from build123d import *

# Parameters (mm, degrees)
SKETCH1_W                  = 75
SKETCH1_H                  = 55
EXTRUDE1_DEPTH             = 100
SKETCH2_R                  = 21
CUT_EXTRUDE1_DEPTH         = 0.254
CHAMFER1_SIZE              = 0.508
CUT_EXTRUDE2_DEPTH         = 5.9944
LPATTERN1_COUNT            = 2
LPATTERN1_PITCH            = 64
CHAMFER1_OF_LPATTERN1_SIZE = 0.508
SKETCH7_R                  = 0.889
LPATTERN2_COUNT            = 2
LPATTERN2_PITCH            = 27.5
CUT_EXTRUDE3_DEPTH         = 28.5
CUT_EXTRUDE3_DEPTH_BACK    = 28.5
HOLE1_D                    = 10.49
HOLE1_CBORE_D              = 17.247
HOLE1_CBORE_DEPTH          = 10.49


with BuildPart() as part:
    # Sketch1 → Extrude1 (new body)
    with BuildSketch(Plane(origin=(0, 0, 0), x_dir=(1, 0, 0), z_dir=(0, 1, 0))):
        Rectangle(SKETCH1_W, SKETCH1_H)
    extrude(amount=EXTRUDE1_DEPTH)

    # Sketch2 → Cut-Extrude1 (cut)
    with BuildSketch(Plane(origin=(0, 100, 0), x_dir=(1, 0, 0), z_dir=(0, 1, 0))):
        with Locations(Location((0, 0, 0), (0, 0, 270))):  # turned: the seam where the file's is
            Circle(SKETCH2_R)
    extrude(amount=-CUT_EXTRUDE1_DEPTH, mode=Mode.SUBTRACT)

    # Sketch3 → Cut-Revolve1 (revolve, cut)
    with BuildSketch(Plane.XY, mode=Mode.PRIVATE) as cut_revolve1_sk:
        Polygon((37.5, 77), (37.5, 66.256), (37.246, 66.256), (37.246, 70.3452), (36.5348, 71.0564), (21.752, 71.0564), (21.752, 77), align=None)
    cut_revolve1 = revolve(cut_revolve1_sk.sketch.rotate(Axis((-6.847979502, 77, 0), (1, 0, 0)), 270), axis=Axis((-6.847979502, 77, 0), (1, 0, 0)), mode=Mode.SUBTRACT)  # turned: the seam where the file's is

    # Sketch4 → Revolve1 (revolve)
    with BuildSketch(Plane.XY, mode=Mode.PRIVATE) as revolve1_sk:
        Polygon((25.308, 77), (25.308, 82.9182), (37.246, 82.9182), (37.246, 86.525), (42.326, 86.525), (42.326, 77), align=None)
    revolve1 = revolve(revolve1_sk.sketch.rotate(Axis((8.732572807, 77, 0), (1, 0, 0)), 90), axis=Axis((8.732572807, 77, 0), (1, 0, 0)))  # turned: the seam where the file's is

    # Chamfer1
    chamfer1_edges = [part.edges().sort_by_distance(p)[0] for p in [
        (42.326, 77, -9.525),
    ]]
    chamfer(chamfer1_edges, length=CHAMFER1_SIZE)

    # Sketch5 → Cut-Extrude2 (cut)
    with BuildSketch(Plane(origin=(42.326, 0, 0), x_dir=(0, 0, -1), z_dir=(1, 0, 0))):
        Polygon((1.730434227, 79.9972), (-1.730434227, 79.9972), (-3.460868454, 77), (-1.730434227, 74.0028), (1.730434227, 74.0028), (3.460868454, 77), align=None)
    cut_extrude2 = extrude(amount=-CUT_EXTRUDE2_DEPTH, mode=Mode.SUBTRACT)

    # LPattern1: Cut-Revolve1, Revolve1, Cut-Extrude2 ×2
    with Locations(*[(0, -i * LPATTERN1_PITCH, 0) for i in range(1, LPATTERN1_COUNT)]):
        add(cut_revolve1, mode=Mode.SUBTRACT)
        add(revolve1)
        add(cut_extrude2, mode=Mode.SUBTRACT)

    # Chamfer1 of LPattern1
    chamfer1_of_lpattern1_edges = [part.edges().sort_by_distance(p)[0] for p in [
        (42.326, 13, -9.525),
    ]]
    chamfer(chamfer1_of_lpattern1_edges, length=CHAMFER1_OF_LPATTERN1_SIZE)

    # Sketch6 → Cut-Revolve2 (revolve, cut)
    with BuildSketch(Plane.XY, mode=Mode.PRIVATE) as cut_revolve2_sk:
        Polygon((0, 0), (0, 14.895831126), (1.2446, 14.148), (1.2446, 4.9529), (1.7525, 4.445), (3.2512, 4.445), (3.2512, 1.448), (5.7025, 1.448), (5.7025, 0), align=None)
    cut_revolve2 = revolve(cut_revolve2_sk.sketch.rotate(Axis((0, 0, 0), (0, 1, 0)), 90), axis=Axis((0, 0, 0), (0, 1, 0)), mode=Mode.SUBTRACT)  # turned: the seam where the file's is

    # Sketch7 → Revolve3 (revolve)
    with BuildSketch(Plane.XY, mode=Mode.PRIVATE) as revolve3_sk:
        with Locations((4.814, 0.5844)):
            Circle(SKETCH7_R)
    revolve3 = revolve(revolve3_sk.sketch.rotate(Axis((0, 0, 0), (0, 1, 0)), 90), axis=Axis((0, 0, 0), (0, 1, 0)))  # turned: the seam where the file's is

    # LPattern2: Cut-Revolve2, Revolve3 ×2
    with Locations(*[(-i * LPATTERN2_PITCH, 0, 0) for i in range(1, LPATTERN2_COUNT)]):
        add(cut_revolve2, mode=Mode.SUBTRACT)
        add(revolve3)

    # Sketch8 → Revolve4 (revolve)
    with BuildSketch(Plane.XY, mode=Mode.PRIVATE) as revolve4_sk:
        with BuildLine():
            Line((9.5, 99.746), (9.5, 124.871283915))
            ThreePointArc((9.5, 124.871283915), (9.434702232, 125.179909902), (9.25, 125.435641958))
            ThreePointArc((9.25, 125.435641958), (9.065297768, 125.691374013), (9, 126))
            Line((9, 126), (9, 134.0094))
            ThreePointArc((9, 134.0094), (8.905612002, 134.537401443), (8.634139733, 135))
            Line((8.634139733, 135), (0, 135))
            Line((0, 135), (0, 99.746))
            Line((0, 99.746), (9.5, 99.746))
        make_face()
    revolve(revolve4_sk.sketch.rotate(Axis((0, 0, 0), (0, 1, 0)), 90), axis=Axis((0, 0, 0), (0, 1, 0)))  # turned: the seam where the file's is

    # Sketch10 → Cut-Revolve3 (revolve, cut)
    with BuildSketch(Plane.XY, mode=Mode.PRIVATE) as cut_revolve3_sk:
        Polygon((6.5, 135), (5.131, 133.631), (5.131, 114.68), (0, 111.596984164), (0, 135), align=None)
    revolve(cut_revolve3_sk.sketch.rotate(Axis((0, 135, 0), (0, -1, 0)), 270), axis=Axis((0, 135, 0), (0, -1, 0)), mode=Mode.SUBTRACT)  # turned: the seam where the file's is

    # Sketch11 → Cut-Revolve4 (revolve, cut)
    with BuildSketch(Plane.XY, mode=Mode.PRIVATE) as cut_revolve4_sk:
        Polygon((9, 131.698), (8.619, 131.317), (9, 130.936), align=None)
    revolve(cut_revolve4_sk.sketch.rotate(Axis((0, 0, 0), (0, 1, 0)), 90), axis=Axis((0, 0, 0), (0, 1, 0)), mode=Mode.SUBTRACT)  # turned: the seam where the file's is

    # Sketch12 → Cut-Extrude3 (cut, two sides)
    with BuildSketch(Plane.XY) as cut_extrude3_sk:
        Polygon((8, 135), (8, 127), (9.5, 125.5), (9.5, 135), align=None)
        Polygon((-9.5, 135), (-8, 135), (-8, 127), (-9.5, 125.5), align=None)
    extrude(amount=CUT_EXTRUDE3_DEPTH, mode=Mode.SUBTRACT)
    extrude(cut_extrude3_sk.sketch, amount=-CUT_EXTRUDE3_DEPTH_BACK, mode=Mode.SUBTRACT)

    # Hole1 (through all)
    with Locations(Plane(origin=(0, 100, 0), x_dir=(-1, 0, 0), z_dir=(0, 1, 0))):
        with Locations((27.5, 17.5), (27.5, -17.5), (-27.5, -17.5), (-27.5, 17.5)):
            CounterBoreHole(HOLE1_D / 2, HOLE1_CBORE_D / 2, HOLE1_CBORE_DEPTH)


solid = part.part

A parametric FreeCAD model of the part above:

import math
import FreeCAD as App
import Part
import Sketcher
Q = App.Units.Quantity


def edges_at(feature, points):
    """Names of the edges that pass closest to the given points."""
    edges = feature.Shape.Edges
    near = lambda p: min(range(len(edges)), key=lambda i: edges[i].distToShape(Part.Vertex(*p))[0])
    return sorted({f"Edge{near(p) + 1}" for p in points})

doc = App.newDocument("Part")
body = doc.addObject("PartDesign::Body", "Body")

# Sketch on XZ plane
sketch1 = doc.addObject("Sketcher::SketchObject", "Sketch")
body.addObject(sketch1)
sketch1.AttachmentSupport = (doc.XZ_Plane, [""])
sketch1.MapMode = "FlatFace"
sketch1.addGeometry([
    Part.LineSegment(App.Vector(-37.5, -27.5, 0), App.Vector(-37.5, 27.5, 0)),
    Part.LineSegment(App.Vector(-37.5, 27.5, 0), App.Vector(37.5, 27.5, 0)),
    Part.LineSegment(App.Vector(37.5, 27.5, 0), App.Vector(37.5, -27.5, 0)),
    Part.LineSegment(App.Vector(37.5, -27.5, 0), App.Vector(-37.5, -27.5, 0)),
], False)
sketch1.addConstraint([
    Sketcher.Constraint("Coincident", 0, 2, 1, 1),
    Sketcher.Constraint("Coincident", 1, 2, 2, 1),
    Sketcher.Constraint("Coincident", 2, 2, 3, 1),
    Sketcher.Constraint("Coincident", 3, 2, 0, 1),
    Sketcher.Constraint("Vertical", 0),
    Sketcher.Constraint("Horizontal", 1),
    Sketcher.Constraint("Vertical", 2),
    Sketcher.Constraint("Horizontal", 3),
    Sketcher.Constraint("Symmetric", 0, 2, 2, 2, -1, 1),
    Sketcher.Constraint("DistanceX", 1, 1, 1, 2, Q("75 mm")),
    Sketcher.Constraint("DistanceY", 0, 1, 0, 2, Q("55 mm")),
])
pad1 = doc.addObject("PartDesign::Pad", "Pad")
body.addObject(pad1)
pad1.Profile = sketch1
pad1.Length = 100
pad1.Reversed = True

# Sketch on XZ plane
sketch2 = doc.addObject("Sketcher::SketchObject", "Sketch001")
body.addObject(sketch2)
sketch2.AttachmentSupport = (doc.XZ_Plane, [""])
sketch2.MapMode = "FlatFace"
sketch2.AttachmentOffset = App.Placement(App.Vector(0, 0, -100), App.Rotation())
sketch2.addGeometry(Part.Circle(App.Vector(0, 0, 0), App.Vector(0, 0, 1), 21), False)
sketch2.addConstraint([
    Sketcher.Constraint("Coincident", 0, 3, -1, 1),
    Sketcher.Constraint("Diameter", 0, Q("42 mm")),
])
pocket1 = doc.addObject("PartDesign::Pocket", "Pocket")
body.addObject(pocket1)
pocket1.Profile = sketch2
pocket1.Length = Q("0.01 in")
pocket1.Reversed = True

# Sketch on XY plane
sketch3 = doc.addObject("Sketcher::SketchObject", "Sketch002")
body.addObject(sketch3)
sketch3.AttachmentSupport = (doc.XY_Plane, [""])
sketch3.MapMode = "FlatFace"
sketch3.addGeometry([
    Part.LineSegment(App.Vector(37.5, 66.256, 0), App.Vector(37.5, 77, 0)),  # 0
    Part.LineSegment(App.Vector(37.5, 77, 0), App.Vector(21.752, 77, 0)),  # 1
    Part.LineSegment(App.Vector(21.752, 77, 0), App.Vector(21.752, 71.0564, 0)),  # 2
    Part.LineSegment(App.Vector(21.752, 71.0564, 0), App.Vector(36.5348, 71.0564, 0)),  # 3
    Part.LineSegment(App.Vector(36.5348, 71.0564, 0), App.Vector(37.246, 70.3452, 0)),  # 4
    Part.LineSegment(App.Vector(37.246, 70.3452, 0), App.Vector(37.246, 66.256, 0)),  # 5
    Part.LineSegment(App.Vector(37.246, 66.256, 0), App.Vector(37.5, 66.256, 0)),  # 6
], False)
sketch3.addGeometry(Part.LineSegment(App.Vector(21.752, 77, 0), App.Vector(37.5, 77, 0)), True)  # axis
sketch3.addConstraint([
    Sketcher.Constraint("Coincident", 0, 2, 1, 1),
    Sketcher.Constraint("Coincident", 1, 2, 2, 1),
    Sketcher.Constraint("Coincident", 2, 2, 3, 1),
    Sketcher.Constraint("Coincident", 3, 2, 4, 1),
    Sketcher.Constraint("Coincident", 4, 2, 5, 1),
    Sketcher.Constraint("Coincident", 5, 2, 6, 1),
    Sketcher.Constraint("Coincident", 6, 2, 0, 1),
    Sketcher.Constraint("Vertical", 0),
    Sketcher.Constraint("Horizontal", 1),
    Sketcher.Constraint("Vertical", 2),
    Sketcher.Constraint("Horizontal", 3),
    Sketcher.Constraint("Vertical", 5),
    Sketcher.Constraint("Horizontal", 6),
    Sketcher.Constraint("Horizontal", 7),
    Sketcher.Constraint("Coincident", 7, 1, 1, 2),
    Sketcher.Constraint("Vertical", 6, 2, 7, 2),
    Sketcher.Constraint("Angle", 4, Q("-45 deg")),
    Sketcher.Constraint("DistanceX", 1, 2, 1, 1, Q("0.62 in")),
    Sketcher.Constraint("DistanceX", 6, 1, 6, 2, Q("0.01 in")),
    Sketcher.Constraint("DistanceX", 3, 1, 3, 2, Q("0.582 in")),
    Sketcher.Constraint("DistanceY", 2, 2, 2, 1, Q("0.234 in")),
    Sketcher.Constraint("DistanceY", 0, 1, 0, 2, Q("10.744 mm")),
    Sketcher.Constraint("DistanceX", -1, 1, 0, 2, Q("37.5 mm")),
    Sketcher.Constraint("DistanceY", -1, 1, 0, 2, Q("77 mm")),
])
groove = doc.addObject("PartDesign::Groove", "Groove")
body.addObject(groove)
groove.Profile = sketch3
groove.ReferenceAxis = (sketch3, ["Axis0"])
groove.Angle = 360

# Sketch on XY plane
sketch4 = doc.addObject("Sketcher::SketchObject", "Sketch003")
body.addObject(sketch4)
sketch4.AttachmentSupport = (doc.XY_Plane, [""])
sketch4.MapMode = "FlatFace"
sketch4.addGeometry([
    Part.LineSegment(App.Vector(25.308, 82.9182, 0), App.Vector(25.308, 77, 0)),  # 0
    Part.LineSegment(App.Vector(25.308, 77, 0), App.Vector(42.326, 77, 0)),  # 1
    Part.LineSegment(App.Vector(42.326, 77, 0), App.Vector(42.326, 86.525, 0)),  # 2
    Part.LineSegment(App.Vector(42.326, 86.525, 0), App.Vector(37.246, 86.525, 0)),  # 3
    Part.LineSegment(App.Vector(37.246, 86.525, 0), App.Vector(37.246, 82.9182, 0)),  # 4
    Part.LineSegment(App.Vector(37.246, 82.9182, 0), App.Vector(25.308, 82.9182, 0)),  # 5
], False)
sketch4.addGeometry(Part.LineSegment(App.Vector(25.308, 77, 0), App.Vector(42.326, 77, 0)), True)  # axis
sketch4.addConstraint([
    Sketcher.Constraint("Coincident", 0, 2, 1, 1),
    Sketcher.Constraint("Coincident", 1, 2, 2, 1),
    Sketcher.Constraint("Coincident", 2, 2, 3, 1),
    Sketcher.Constraint("Coincident", 3, 2, 4, 1),
    Sketcher.Constraint("Coincident", 4, 2, 5, 1),
    Sketcher.Constraint("Coincident", 5, 2, 0, 1),
    Sketcher.Constraint("Vertical", 0),
    Sketcher.Constraint("Horizontal", 1),
    Sketcher.Constraint("Vertical", 2),
    Sketcher.Constraint("Horizontal", 3),
    Sketcher.Constraint("Vertical", 4),
    Sketcher.Constraint("Horizontal", 5),
    Sketcher.Constraint("Horizontal", 6),
    Sketcher.Constraint("Coincident", 6, 1, 0, 2),
    Sketcher.Constraint("Vertical", 2, 2, 6, 2),
    Sketcher.Constraint("DistanceX", 3, 2, 3, 1, Q("0.2 in")),
    Sketcher.Constraint("DistanceX", 1, 1, 1, 2, Q("0.67 in")),
    Sketcher.Constraint("DistanceY", 0, 2, 0, 1, Q("0.233 in")),
    Sketcher.Constraint("DistanceY", 2, 1, 2, 2, Q("0.375 in")),
    Sketcher.Constraint("DistanceX", -1, 1, 0, 2, Q("25.308 mm")),
    Sketcher.Constraint("DistanceY", -1, 1, 0, 2, Q("77 mm")),
])
revolution = doc.addObject("PartDesign::Revolution", "Revolution")
body.addObject(revolution)
revolution.Profile = sketch4
revolution.ReferenceAxis = (sketch4, ["Axis0"])
revolution.Angle = 360
doc.recompute()

chamfer = doc.addObject("PartDesign::Chamfer", "Chamfer")
body.addObject(chamfer)
chamfer.Base = (revolution, edges_at(revolution, [(42.326, 77, -9.525)]))
chamfer.Size = Q("0.02 in")

# Sketch on YZ plane
sketch5 = doc.addObject("Sketcher::SketchObject", "Sketch004")
body.addObject(sketch5)
sketch5.AttachmentSupport = (doc.YZ_Plane, [""])
sketch5.MapMode = "FlatFace"
sketch5.AttachmentOffset = App.Placement(App.Vector(0, 0, 42.326), App.Rotation())
sketch5.addGeometry([
    Part.LineSegment(App.Vector(79.9972, -1.730434, 0), App.Vector(79.9972, 1.730434, 0)),  # 0
    Part.LineSegment(App.Vector(79.9972, 1.730434, 0), App.Vector(77, 3.460868, 0)),  # 1
    Part.LineSegment(App.Vector(77, 3.460868, 0), App.Vector(74.0028, 1.730434, 0)),  # 2
    Part.LineSegment(App.Vector(74.0028, 1.730434, 0), App.Vector(74.0028, -1.730434, 0)),  # 3
    Part.LineSegment(App.Vector(74.0028, -1.730434, 0), App.Vector(77, -3.460868, 0)),  # 4
    Part.LineSegment(App.Vector(77, -3.460868, 0), App.Vector(79.9972, -1.730434, 0)),  # 5
], False)
sketch5.addConstraint([
    Sketcher.Constraint("Coincident", 0, 2, 1, 1),
    Sketcher.Constraint("Coincident", 1, 2, 2, 1),
    Sketcher.Constraint("Coincident", 2, 2, 3, 1),
    Sketcher.Constraint("Coincident", 3, 2, 4, 1),
    Sketcher.Constraint("Coincident", 4, 2, 5, 1),
    Sketcher.Constraint("Coincident", 5, 2, 0, 1),
    Sketcher.Constraint("Vertical", 0),
    Sketcher.Constraint("Vertical", 3),
    Sketcher.Constraint("Symmetric", 1, 2, 4, 2, -1),
    Sketcher.Constraint("Parallel", 1, 4),
    Sketcher.Constraint("Parallel", 2, 5),
    Sketcher.Constraint("Horizontal", 0, 2, 2, 2),
    Sketcher.Constraint("Horizontal", 3, 2, 5, 2),
    Sketcher.Constraint("Angle", 1, Q("150 deg")),
    Sketcher.Constraint("DistanceX", 1, 2, 0, 2, Q("0.118 in")),
    Sketcher.Constraint("DistanceY", 0, 1, 0, 2, Q("3.460868 mm")),
    Sketcher.Constraint("DistanceX", -1, 1, 0, 2, Q("79.9972 mm")),
])
pocket2 = doc.addObject("PartDesign::Pocket", "Pocket001")
body.addObject(pocket2)
pocket2.Profile = sketch5
pocket2.Length = Q("0.236 in")
doc.recompute()

linearpattern = doc.addObject("PartDesign::LinearPattern", "LinearPattern")
body.addObject(linearpattern)
linearpattern.Originals = [groove, revolution, pocket2]
linearpattern.Direction = (doc.Y_Axis, [""])
linearpattern.Mode = "offset"
linearpattern.Offset = 64
linearpattern.Occurrences = 2
linearpattern.Reversed = True
body.Tip = linearpattern
doc.recompute()

chamfer2 = doc.addObject("PartDesign::Chamfer", "Chamfer001")
body.addObject(chamfer2)
chamfer2.Base = (linearpattern, edges_at(linearpattern, [(42.326, 13, -9.525)]))
chamfer2.Size = Q("0.02 in")

# Sketch on XY plane
sketch6 = doc.addObject("Sketcher::SketchObject", "Sketch005")
body.addObject(sketch6)
sketch6.AttachmentSupport = (doc.XY_Plane, [""])
sketch6.MapMode = "FlatFace"
sketch6.addGeometry([
    Part.LineSegment(App.Vector(0, 14.895831, 0), App.Vector(0, 0, 0)),  # 0
    Part.LineSegment(App.Vector(0, 0, 0), App.Vector(5.7025, 0, 0)),  # 1
    Part.LineSegment(App.Vector(5.7025, 0, 0), App.Vector(5.7025, 1.448, 0)),  # 2
    Part.LineSegment(App.Vector(5.7025, 1.448, 0), App.Vector(3.2512, 1.448, 0)),  # 3
    Part.LineSegment(App.Vector(3.2512, 1.448, 0), App.Vector(3.2512, 4.445, 0)),  # 4
    Part.LineSegment(App.Vector(3.2512, 4.445, 0), App.Vector(1.7525, 4.445, 0)),  # 5
    Part.LineSegment(App.Vector(1.7525, 4.445, 0), App.Vector(1.2446, 4.9529, 0)),  # 6
    Part.LineSegment(App.Vector(1.2446, 4.9529, 0), App.Vector(1.2446, 14.148, 0)),  # 7
    Part.LineSegment(App.Vector(1.2446, 14.148, 0), App.Vector(0, 14.895831, 0)),  # 8
], False)
sketch6.addConstraint([
    Sketcher.Constraint("Coincident", 0, 2, 1, 1),
    Sketcher.Constraint("Coincident", 1, 2, 2, 1),
    Sketcher.Constraint("Coincident", 2, 2, 3, 1),
    Sketcher.Constraint("Coincident", 3, 2, 4, 1),
    Sketcher.Constraint("Coincident", 4, 2, 5, 1),
    Sketcher.Constraint("Coincident", 5, 2, 6, 1),
    Sketcher.Constraint("Coincident", 6, 2, 7, 1),
    Sketcher.Constraint("Coincident", 7, 2, 8, 1),
    Sketcher.Constraint("Coincident", 8, 2, 0, 1),
    Sketcher.Constraint("Vertical", 0),
    Sketcher.Constraint("Horizontal", 1),
    Sketcher.Constraint("Vertical", 2),
    Sketcher.Constraint("Horizontal", 3),
    Sketcher.Constraint("Vertical", 4),
    Sketcher.Constraint("Horizontal", 5),
    Sketcher.Constraint("Vertical", 7),
    Sketcher.Constraint("Coincident", 0, 2, -1, 1),
    Sketcher.Constraint("Angle", 6, Q("135 deg")),
    Sketcher.Constraint("Angle", 8, Q("149 deg")),
    Sketcher.Constraint("DistanceY", 3, 2, 7, 2, Q("0.5 in")),
    Sketcher.Constraint("DistanceX", -1, 1, 3, 2, Q("0.128 in")),
    Sketcher.Constraint("DistanceY", -1, 1, 4, 2, Q("0.175 in")),
    Sketcher.Constraint("DistanceX", -1, 1, 6, 2, Q("0.049 in")),
    Sketcher.Constraint("DistanceX", 1, 1, 1, 2, Q("5.7025 mm")),
    Sketcher.Constraint("DistanceX", 5, 2, 5, 1, Q("1.4987 mm")),
    Sketcher.Constraint("DistanceY", 2, 1, 2, 2, Q("1.448 mm")),
])
groove2 = doc.addObject("PartDesign::Groove", "Groove001")
body.addObject(groove2)
groove2.Profile = sketch6
groove2.ReferenceAxis = (sketch6, ["V_Axis"])
groove2.Angle = 360

# Sketch on XY plane
sketch7 = doc.addObject("Sketcher::SketchObject", "Sketch006")
body.addObject(sketch7)
sketch7.AttachmentSupport = (doc.XY_Plane, [""])
sketch7.MapMode = "FlatFace"
sketch7.addGeometry(Part.Circle(App.Vector(4.814, 0.5844, 0), App.Vector(0, 0, 1), 0.889), False)
sketch7.addConstraint([
    Sketcher.Constraint("Diameter", 0, Q("0.07 in")),
    Sketcher.Constraint("DistanceX", -1, 1, 0, 3, Q("4.814 mm")),
    Sketcher.Constraint("DistanceY", -1, 1, 0, 3, Q("0.5844 mm")),
])
revolution2 = doc.addObject("PartDesign::Revolution", "Revolution001")
body.addObject(revolution2)
revolution2.Profile = sketch7
revolution2.ReferenceAxis = (sketch7, ["V_Axis"])
revolution2.Angle = 360
doc.recompute()

linearpattern2 = doc.addObject("PartDesign::LinearPattern", "LinearPattern001")
body.addObject(linearpattern2)
linearpattern2.Originals = [groove2, revolution2]
linearpattern2.Direction = (doc.X_Axis, [""])
linearpattern2.Mode = "offset"
linearpattern2.Offset = 27.5
linearpattern2.Occurrences = 2
linearpattern2.Reversed = True
body.Tip = linearpattern2

# Sketch on XY plane
sketch8 = doc.addObject("Sketcher::SketchObject", "Sketch007")
body.addObject(sketch8)
sketch8.AttachmentSupport = (doc.XY_Plane, [""])
sketch8.MapMode = "FlatFace"
sketch8.addGeometry([
    Part.LineSegment(App.Vector(9.5, 99.746, 0), App.Vector(9.5, 124.871284, 0)),  # 0
    Part.ArcOfCircle(Part.Circle(App.Vector(8.738, 124.871284, 0), App.Vector(0, 0, 1), 0.762), math.radians(0), math.radians(47.784884)),  # 1
    Part.ArcOfCircle(Part.Circle(App.Vector(9.762, 126, 0), App.Vector(0, 0, 1), 0.762), math.radians(180), math.radians(227.784884)),  # 2
    Part.LineSegment(App.Vector(9, 126, 0), App.Vector(9, 134.0094, 0)),  # 3
    Part.ArcOfCircle(Part.Circle(App.Vector(7.476, 134.0094, 0), App.Vector(0, 0, 1), 1.524), math.radians(0), math.radians(40.541602)),  # 4
    Part.LineSegment(App.Vector(8.63414, 135, 0), App.Vector(0, 135, 0)),  # 5
    Part.LineSegment(App.Vector(0, 135, 0), App.Vector(0, 99.746, 0)),  # 6
    Part.LineSegment(App.Vector(0, 99.746, 0), App.Vector(9.5, 99.746, 0)),  # 7
], False)
sketch8.addConstraint([
    Sketcher.Constraint("Tangent", 0, 2, 1, 1),
    Sketcher.Constraint("Tangent", 1, 2, 2, 2),
    Sketcher.Constraint("Tangent", 2, 1, 3, 1),
    Sketcher.Constraint("Tangent", 3, 2, 4, 1),
    Sketcher.Constraint("Coincident", 4, 2, 5, 1),
    Sketcher.Constraint("Coincident", 5, 2, 6, 1),
    Sketcher.Constraint("Coincident", 6, 2, 7, 1),
    Sketcher.Constraint("Coincident", 7, 2, 0, 1),
    Sketcher.Constraint("Vertical", 0),
    Sketcher.Constraint("Vertical", 3),
    Sketcher.Constraint("Horizontal", 5),
    Sketcher.Constraint("Vertical", 6),
    Sketcher.Constraint("Horizontal", 7),
    Sketcher.Constraint("Equal", 1, 2),
    Sketcher.Constraint("PointOnObject", 5, 2, -2),
    Sketcher.Constraint("Radius", 1, Q("0.03 in")),
    Sketcher.Constraint("Radius", 4, Q("0.06 in")),
    Sketcher.Constraint("DistanceY", 3, 2, 4, 2, Q("0.039 in")),
    Sketcher.Constraint("DistanceX", 7, 1, 7, 2, Q("9.5 mm")),
    Sketcher.Constraint("DistanceY", 3, 1, 3, 2, Q("8.0094 mm")),
    Sketcher.Constraint("DistanceY", 6, 2, 6, 1, Q("35.254 mm")),
    Sketcher.Constraint("DistanceX", 5, 2, 5, 1, Q("8.63414 mm")),
    Sketcher.Constraint("DistanceY", -1, 1, 2, 3, Q("126 mm")),
])
revolution3 = doc.addObject("PartDesign::Revolution", "Revolution002")
body.addObject(revolution3)
revolution3.Profile = sketch8
revolution3.ReferenceAxis = (sketch8, ["V_Axis"])
revolution3.Angle = 360

# Sketch on XY plane
sketch9 = doc.addObject("Sketcher::SketchObject", "Sketch008")
body.addObject(sketch9)
sketch9.AttachmentSupport = (doc.XY_Plane, [""])
sketch9.MapMode = "FlatFace"
sketch9.addGeometry([
    Part.LineSegment(App.Vector(5.131, 133.631, 0), App.Vector(6.5, 135, 0)),  # 0
    Part.LineSegment(App.Vector(6.5, 135, 0), App.Vector(0, 135, 0)),  # 1
    Part.LineSegment(App.Vector(0, 135, 0), App.Vector(0, 111.596984, 0)),  # 2
    Part.LineSegment(App.Vector(0, 111.596984, 0), App.Vector(5.131, 114.68, 0)),  # 3
    Part.LineSegment(App.Vector(5.131, 114.68, 0), App.Vector(5.131, 133.631, 0)),  # 4
], False)
sketch9.addConstraint([
    Sketcher.Constraint("Coincident", 0, 2, 1, 1),
    Sketcher.Constraint("Coincident", 1, 2, 2, 1),
    Sketcher.Constraint("Coincident", 2, 2, 3, 1),
    Sketcher.Constraint("Coincident", 3, 2, 4, 1),
    Sketcher.Constraint("Coincident", 4, 2, 0, 1),
    Sketcher.Constraint("Horizontal", 1),
    Sketcher.Constraint("Vertical", 2),
    Sketcher.Constraint("Vertical", 4),
    Sketcher.Constraint("PointOnObject", 1, 2, -2),
    Sketcher.Constraint("Angle", 0, Q("45 deg")),
    Sketcher.Constraint("Angle", 3, Q("31 deg")),
    Sketcher.Constraint("DistanceY", 3, 2, 0, 2, Q("0.8 in")),
    Sketcher.Constraint("DistanceX", 1, 2, 1, 1, Q("6.5 mm")),
    Sketcher.Constraint("DistanceY", 4, 1, 4, 2, Q("18.951 mm")),
    Sketcher.Constraint("DistanceY", -1, 1, 0, 2, Q("135 mm")),
])
groove3 = doc.addObject("PartDesign::Groove", "Groove002")
body.addObject(groove3)
groove3.Profile = sketch9
groove3.ReferenceAxis = (sketch9, ["V_Axis"])
groove3.Angle = 360

# Sketch on XY plane
sketch10 = doc.addObject("Sketcher::SketchObject", "Sketch009")
body.addObject(sketch10)
sketch10.AttachmentSupport = (doc.XY_Plane, [""])
sketch10.MapMode = "FlatFace"
sketch10.addGeometry([
    Part.LineSegment(App.Vector(9, 131.698, 0), App.Vector(8.619, 131.317, 0)),
    Part.LineSegment(App.Vector(8.619, 131.317, 0), App.Vector(9, 130.936, 0)),
    Part.LineSegment(App.Vector(9, 130.936, 0), App.Vector(9, 131.698, 0)),
], False)
sketch10.addConstraint([
    Sketcher.Constraint("Coincident", 0, 2, 1, 1),
    Sketcher.Constraint("Coincident", 1, 2, 2, 1),
    Sketcher.Constraint("Coincident", 2, 2, 0, 1),
    Sketcher.Constraint("Vertical", 2),
    Sketcher.Constraint("Perpendicular", 0, 1),
    Sketcher.Constraint("Equal", 0, 1),
    Sketcher.Constraint("DistanceY", 2, 1, 2, 2, Q("0.03 in")),
    Sketcher.Constraint("DistanceX", -1, 1, 0, 2, Q("8.619 mm")),
    Sketcher.Constraint("DistanceY", -1, 1, 0, 2, Q("131.317 mm")),
])
groove4 = doc.addObject("PartDesign::Groove", "Groove003")
body.addObject(groove4)
groove4.Profile = sketch10
groove4.ReferenceAxis = (sketch10, ["V_Axis"])
groove4.Angle = 360

# Sketch on XY plane
sketch11 = doc.addObject("Sketcher::SketchObject", "Sketch010")
body.addObject(sketch11)
sketch11.AttachmentSupport = (doc.XY_Plane, [""])
sketch11.MapMode = "FlatFace"
sketch11.addGeometry([
    Part.LineSegment(App.Vector(8, 135, 0), App.Vector(8, 127, 0)),  # 0
    Part.LineSegment(App.Vector(8, 127, 0), App.Vector(9.5, 125.5, 0)),  # 1
    Part.LineSegment(App.Vector(9.5, 125.5, 0), App.Vector(9.5, 135, 0)),  # 2
    Part.LineSegment(App.Vector(9.5, 135, 0), App.Vector(8, 135, 0)),  # 3
    Part.LineSegment(App.Vector(-8, 135, 0), App.Vector(-9.5, 135, 0)),  # 4
    Part.LineSegment(App.Vector(-9.5, 135, 0), App.Vector(-9.5, 125.5, 0)),  # 5
    Part.LineSegment(App.Vector(-9.5, 125.5, 0), App.Vector(-8, 127, 0)),  # 6
    Part.LineSegment(App.Vector(-8, 127, 0), App.Vector(-8, 135, 0)),  # 7
], False)
sketch11.addConstraint([
    Sketcher.Constraint("Coincident", 0, 2, 1, 1),
    Sketcher.Constraint("Coincident", 1, 2, 2, 1),
    Sketcher.Constraint("Coincident", 2, 2, 3, 1),
    Sketcher.Constraint("Coincident", 3, 2, 0, 1),
    Sketcher.Constraint("Coincident", 4, 2, 5, 1),
    Sketcher.Constraint("Coincident", 5, 2, 6, 1),
    Sketcher.Constraint("Coincident", 6, 2, 7, 1),
    Sketcher.Constraint("Coincident", 7, 2, 4, 1),
    Sketcher.Constraint("Vertical", 0),
    Sketcher.Constraint("Vertical", 2),
    Sketcher.Constraint("Horizontal", 3),
    Sketcher.Constraint("Horizontal", 4),
    Sketcher.Constraint("Vertical", 5),
    Sketcher.Constraint("Vertical", 7),
    Sketcher.Constraint("Symmetric", 2, 2, 4, 2, -2),
    Sketcher.Constraint("Symmetric", 0, 2, 6, 2, -2),
    Sketcher.Constraint("Perpendicular", 1, 6),
    Sketcher.Constraint("Horizontal", 1, 2, 5, 2),
    Sketcher.Constraint("DistanceY", -1, 1, 0, 2, Q("5 in")),
    Sketcher.Constraint("DistanceX", 3, 2, 3, 1, Q("1.5 mm")),
    Sketcher.Constraint("DistanceY", 0, 2, 0, 1, Q("8 mm")),
    Sketcher.Constraint("DistanceX", -1, 1, 0, 2, Q("8 mm")),
])
pocket3 = doc.addObject("PartDesign::Pocket", "Pocket002")
body.addObject(pocket3)
pocket3.Profile = sketch11
pocket3.Type = "ThroughAll"
pocket3.Midplane = True

# Sketch on XZ plane
sketch12 = doc.addObject("Sketcher::SketchObject", "Sketch011")
body.addObject(sketch12)
sketch12.AttachmentSupport = (doc.XZ_Plane, [""])
sketch12.MapMode = "FlatFace"
sketch12.AttachmentOffset = App.Placement(App.Vector(0, 0, -100), App.Rotation())
sketch12.addGeometry([
    Part.Circle(App.Vector(-27.5, 17.5, 0), App.Vector(0, 0, 1), 5.245),
    Part.Circle(App.Vector(-27.5, -17.5, 0), App.Vector(0, 0, 1), 5.245),
    Part.Circle(App.Vector(27.5, -17.5, 0), App.Vector(0, 0, 1), 5.245),
    Part.Circle(App.Vector(27.5, 17.5, 0), App.Vector(0, 0, 1), 5.245),
], False)
sketch12.addConstraint([
    Sketcher.Constraint("Equal", 0, 1),
    Sketcher.Constraint("Equal", 1, 2),
    Sketcher.Constraint("Equal", 2, 3),
    Sketcher.Constraint("Symmetric", 0, 3, 2, 3, -1, 1),
    Sketcher.Constraint("Symmetric", 1, 3, 3, 3, -1, 1),
    Sketcher.Constraint("Symmetric", 1, 3, 2, 3, -2),
    Sketcher.Constraint("Diameter", 0, Q("10.49 mm")),
    Sketcher.Constraint("DistanceX", 0, 3, -1, 1, Q("27.5 mm")),
    Sketcher.Constraint("DistanceY", -1, 1, 0, 3, Q("17.5 mm")),
])
doc.recompute()
hole = doc.addObject("PartDesign::Hole", "Hole")
body.addObject(hole)
hole.Profile = sketch12
hole.ThreadType = "None"
hole.Diameter = 10.49
hole.DepthType = "ThroughAll"
hole.HoleCutType = "Counterbore"
hole.HoleCutDiameter = 17.247
hole.HoleCutDepth = 10.49
hole.Reversed = True

doc.recompute()
